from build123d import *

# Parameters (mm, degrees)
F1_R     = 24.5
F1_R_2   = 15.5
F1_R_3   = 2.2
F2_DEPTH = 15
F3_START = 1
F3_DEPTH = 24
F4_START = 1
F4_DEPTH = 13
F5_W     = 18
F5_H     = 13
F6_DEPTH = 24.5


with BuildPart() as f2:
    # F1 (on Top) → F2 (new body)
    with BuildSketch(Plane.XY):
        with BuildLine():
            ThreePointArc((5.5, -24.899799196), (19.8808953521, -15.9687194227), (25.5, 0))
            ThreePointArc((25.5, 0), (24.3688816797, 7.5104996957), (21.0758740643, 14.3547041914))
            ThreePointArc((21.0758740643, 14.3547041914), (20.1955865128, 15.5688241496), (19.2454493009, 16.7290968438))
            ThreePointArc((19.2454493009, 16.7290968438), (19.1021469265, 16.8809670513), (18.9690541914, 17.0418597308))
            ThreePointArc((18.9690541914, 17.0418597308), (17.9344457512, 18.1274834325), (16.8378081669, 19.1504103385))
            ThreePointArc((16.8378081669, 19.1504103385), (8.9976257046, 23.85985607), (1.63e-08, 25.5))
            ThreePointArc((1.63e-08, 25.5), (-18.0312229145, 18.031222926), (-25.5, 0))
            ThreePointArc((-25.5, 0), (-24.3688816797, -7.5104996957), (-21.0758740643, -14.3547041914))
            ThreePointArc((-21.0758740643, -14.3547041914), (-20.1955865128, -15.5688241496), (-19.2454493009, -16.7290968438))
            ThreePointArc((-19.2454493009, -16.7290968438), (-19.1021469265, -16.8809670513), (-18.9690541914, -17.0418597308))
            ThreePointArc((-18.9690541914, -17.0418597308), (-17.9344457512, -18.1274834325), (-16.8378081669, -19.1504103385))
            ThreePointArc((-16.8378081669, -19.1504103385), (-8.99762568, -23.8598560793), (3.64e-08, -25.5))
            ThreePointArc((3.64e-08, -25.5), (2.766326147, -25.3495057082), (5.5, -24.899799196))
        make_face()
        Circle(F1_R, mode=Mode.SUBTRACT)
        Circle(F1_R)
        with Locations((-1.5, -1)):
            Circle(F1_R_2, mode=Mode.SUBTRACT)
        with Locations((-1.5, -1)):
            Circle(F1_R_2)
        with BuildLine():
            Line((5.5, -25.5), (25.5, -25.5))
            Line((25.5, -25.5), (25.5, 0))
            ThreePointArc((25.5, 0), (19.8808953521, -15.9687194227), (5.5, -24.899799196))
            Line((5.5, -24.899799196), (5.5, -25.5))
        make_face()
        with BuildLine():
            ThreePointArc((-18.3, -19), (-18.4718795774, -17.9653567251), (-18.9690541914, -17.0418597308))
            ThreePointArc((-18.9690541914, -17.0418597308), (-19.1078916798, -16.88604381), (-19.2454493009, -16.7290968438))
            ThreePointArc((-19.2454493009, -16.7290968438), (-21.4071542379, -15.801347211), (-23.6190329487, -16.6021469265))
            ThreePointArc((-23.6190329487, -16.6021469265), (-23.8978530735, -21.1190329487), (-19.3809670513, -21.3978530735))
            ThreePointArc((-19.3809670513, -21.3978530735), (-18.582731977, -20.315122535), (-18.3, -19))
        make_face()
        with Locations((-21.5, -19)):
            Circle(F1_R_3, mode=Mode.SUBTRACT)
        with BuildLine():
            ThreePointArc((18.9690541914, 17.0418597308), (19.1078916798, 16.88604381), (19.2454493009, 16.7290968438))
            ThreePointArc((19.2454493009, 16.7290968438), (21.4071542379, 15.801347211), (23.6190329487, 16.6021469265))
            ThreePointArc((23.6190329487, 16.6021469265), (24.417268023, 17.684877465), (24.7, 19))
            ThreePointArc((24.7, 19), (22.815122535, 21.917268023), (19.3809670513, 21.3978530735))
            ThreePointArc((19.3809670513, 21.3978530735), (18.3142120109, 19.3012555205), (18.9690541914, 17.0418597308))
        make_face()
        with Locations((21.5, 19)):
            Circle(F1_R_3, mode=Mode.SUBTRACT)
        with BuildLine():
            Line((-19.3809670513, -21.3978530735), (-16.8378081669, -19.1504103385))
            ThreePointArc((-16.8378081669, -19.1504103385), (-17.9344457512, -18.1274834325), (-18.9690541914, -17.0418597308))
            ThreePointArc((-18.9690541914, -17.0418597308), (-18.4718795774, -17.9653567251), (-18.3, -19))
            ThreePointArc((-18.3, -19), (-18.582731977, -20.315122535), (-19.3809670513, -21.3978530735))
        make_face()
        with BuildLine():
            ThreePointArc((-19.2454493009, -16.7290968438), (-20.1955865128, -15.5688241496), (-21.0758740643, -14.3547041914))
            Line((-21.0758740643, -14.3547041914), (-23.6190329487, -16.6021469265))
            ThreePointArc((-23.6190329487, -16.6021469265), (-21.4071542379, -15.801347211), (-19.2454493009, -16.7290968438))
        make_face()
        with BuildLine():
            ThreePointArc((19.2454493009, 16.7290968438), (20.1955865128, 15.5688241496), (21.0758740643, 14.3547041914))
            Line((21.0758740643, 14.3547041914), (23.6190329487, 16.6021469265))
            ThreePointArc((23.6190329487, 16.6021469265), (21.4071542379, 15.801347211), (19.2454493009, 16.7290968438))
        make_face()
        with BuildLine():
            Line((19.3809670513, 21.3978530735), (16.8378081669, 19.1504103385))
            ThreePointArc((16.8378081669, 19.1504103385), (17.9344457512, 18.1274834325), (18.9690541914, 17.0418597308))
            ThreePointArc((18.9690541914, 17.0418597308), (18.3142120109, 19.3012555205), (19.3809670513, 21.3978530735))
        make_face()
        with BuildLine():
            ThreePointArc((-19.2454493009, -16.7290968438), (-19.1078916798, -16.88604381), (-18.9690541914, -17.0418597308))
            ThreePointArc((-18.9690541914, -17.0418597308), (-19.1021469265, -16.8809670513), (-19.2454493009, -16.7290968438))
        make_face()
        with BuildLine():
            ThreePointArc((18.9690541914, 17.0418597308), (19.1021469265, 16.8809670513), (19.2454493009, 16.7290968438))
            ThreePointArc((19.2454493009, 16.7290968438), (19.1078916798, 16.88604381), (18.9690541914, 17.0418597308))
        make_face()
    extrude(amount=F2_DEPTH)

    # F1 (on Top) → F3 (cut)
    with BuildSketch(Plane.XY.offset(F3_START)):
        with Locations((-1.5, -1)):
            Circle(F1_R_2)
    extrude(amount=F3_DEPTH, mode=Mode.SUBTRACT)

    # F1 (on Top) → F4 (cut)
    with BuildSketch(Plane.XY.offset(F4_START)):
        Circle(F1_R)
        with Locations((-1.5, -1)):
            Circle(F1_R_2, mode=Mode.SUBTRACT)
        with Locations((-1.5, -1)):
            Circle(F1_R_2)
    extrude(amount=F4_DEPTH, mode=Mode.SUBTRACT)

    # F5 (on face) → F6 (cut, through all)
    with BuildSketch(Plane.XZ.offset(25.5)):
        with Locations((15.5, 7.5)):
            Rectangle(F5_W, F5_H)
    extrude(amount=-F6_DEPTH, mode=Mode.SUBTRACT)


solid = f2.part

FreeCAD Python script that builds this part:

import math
import FreeCAD as App
import Part
import Sketcher
from FreeCAD import Vector

doc = App.newDocument("Part")
body = doc.addObject("PartDesign::Body", "Body")

sketch1 = doc.addObject("Sketcher::SketchObject", "Sketch")
body.addObject(sketch1)
sketch1.AttachmentSupport = (doc.XY_Plane, [""])
sketch1.MapMode = "FlatFace"
sketch1.addGeometry(Part.ArcOfCircle(Part.Circle(Vector(21.5, 19, 0), Vector(0, 0, 1), 3.2), math.radians(0), math.radians(131)), False)
sketch1.addGeometry(Part.LineSegment(Vector(19.4, 21.4, 0), Vector(16.8, 19.2, 0)), False)
sketch1.addGeometry(Part.ArcOfCircle(Part.Circle(Vector(0, 0, 0), Vector(0, 0, 1), 25.5), math.radians(49), math.radians(90)), False)
sketch1.addGeometry(Part.ArcOfCircle(Part.Circle(Vector(0, 0, 0), Vector(0, 0, 1), 25.5), math.radians(90), math.radians(180)), False)
sketch1.addGeometry(Part.ArcOfCircle(Part.Circle(Vector(0, 0, 0), Vector(0, 0, 1), 25.5), math.radians(180), math.radians(214)), False)
sketch1.addGeometry(Part.LineSegment(Vector(-21.1, -14.4, 0), Vector(-23.6, -16.6, 0)), False)
sketch1.addGeometry(Part.ArcOfCircle(Part.Circle(Vector(-21.5, -19, 0), Vector(0, 0, 1), 3.2), math.radians(131), math.radians(311)), False)
sketch1.addGeometry(Part.LineSegment(Vector(-19.4, -21.4, 0), Vector(-16.8, -19.2, 0)), False)
sketch1.addGeometry(Part.ArcOfCircle(Part.Circle(Vector(0, 0, 0), Vector(0, 0, 1), 25.5), math.radians(-131), math.radians(-90)), False)
sketch1.addGeometry(Part.ArcOfCircle(Part.Circle(Vector(0, 0, 0), Vector(0, 0, 1), 25.5), math.radians(-90), math.radians(-77.54)), False)
sketch1.addGeometry(Part.LineSegment(Vector(5.5, -24.9, 0), Vector(5.5, -25.5, 0)), False)
sketch1.addGeometry(Part.LineSegment(Vector(5.5, -25.5, 0), Vector(25.5, -25.5, 0)), False)
sketch1.addGeometry(Part.LineSegment(Vector(25.5, -25.5, 0), Vector(25.5, 0, 0)), False)
sketch1.addGeometry(Part.ArcOfCircle(Part.Circle(Vector(0, 0, 0), Vector(0, 0, 1), 25.5), math.radians(0), math.radians(34)), False)
sketch1.addGeometry(Part.LineSegment(Vector(21.1, 14.4, 0), Vector(23.6, 16.6, 0)), False)
sketch1.addGeometry(Part.ArcOfCircle(Part.Circle(Vector(21.5, 19, 0), Vector(0, 0, 1), 3.2), math.radians(-49), math.radians(0)), False)
sketch1.addGeometry(Part.Circle(Vector(-21.5, -19, 0), Vector(0, 0, 1), 2.2), False)
sketch1.addGeometry(Part.Circle(Vector(21.5, 19, 0), Vector(0, 0, 1), 2.2), False)
sketch1.addConstraint(Sketcher.Constraint("Tangent", 0, 2, 1, 1))
sketch1.addConstraint(Sketcher.Constraint("Coincident", 1, 2, 2, 1))
sketch1.addConstraint(Sketcher.Constraint("Tangent", 2, 2, 3, 1))
sketch1.addConstraint(Sketcher.Constraint("Tangent", 3, 2, 4, 1))
sketch1.addConstraint(Sketcher.Constraint("Coincident", 4, 2, 5, 1))
sketch1.addConstraint(Sketcher.Constraint("Tangent", 5, 2, 6, 1))
sketch1.addConstraint(Sketcher.Constraint("Tangent", 6, 2, 7, 1))
sketch1.addConstraint(Sketcher.Constraint("Coincident", 7, 2, 8, 1))
sketch1.addConstraint(Sketcher.Constraint("Tangent", 8, 2, 9, 1))
sketch1.addConstraint(Sketcher.Constraint("Coincident", 9, 2, 10, 1))
sketch1.addConstraint(Sketcher.Constraint("Coincident", 10, 2, 11, 1))
sketch1.addConstraint(Sketcher.Constraint("Coincident", 11, 2, 12, 1))
sketch1.addConstraint(Sketcher.Constraint("Tangent", 12, 2, 13, 1))
sketch1.addConstraint(Sketcher.Constraint("Coincident", 13, 2, 14, 1))
sketch1.addConstraint(Sketcher.Constraint("Tangent", 14, 2, 15, 1))
sketch1.addConstraint(Sketcher.Constraint("Tangent", 15, 2, 0, 1))
sketch1.addConstraint(Sketcher.Constraint("Vertical", 10))
sketch1.addConstraint(Sketcher.Constraint("Horizontal", 11))
sketch1.addConstraint(Sketcher.Constraint("Vertical", 12))
sketch1.addConstraint(Sketcher.Constraint("Coincident", 2, 3, -1, 1))
sketch1.addConstraint(Sketcher.Constraint("Coincident", 4, 3, -1, 1))
sketch1.addConstraint(Sketcher.Constraint("Coincident", 8, 3, -1, 1))
sketch1.addConstraint(Sketcher.Constraint("Coincident", 13, 3, -1, 1))
sketch1.addConstraint(Sketcher.Constraint("Coincident", 16, 3, 6, 3))
sketch1.addConstraint(Sketcher.Constraint("Coincident", 17, 3, 0, 3))
sketch1.addConstraint(Sketcher.Constraint("Equal", 0, 6))
sketch1.addConstraint(Sketcher.Constraint("Equal", 4, 8))
sketch1.addConstraint(Sketcher.Constraint("Equal", 8, 9))
sketch1.addConstraint(Sketcher.Constraint("Equal", 9, 13))
sketch1.addConstraint(Sketcher.Constraint("Equal", 6, 15))
sketch1.addConstraint(Sketcher.Constraint("Equal", 16, 17))
sketch1.addConstraint(Sketcher.Constraint("Symmetric", 0, 3, 6, 3, -1, 1))
sketch1.addConstraint(Sketcher.Constraint("PointOnObject", 2, 2, -2))
sketch1.addConstraint(Sketcher.Constraint("PointOnObject", 3, 2, -1))
sketch1.addConstraint(Sketcher.Constraint("PointOnObject", 8, 2, -2))
sketch1.addConstraint(Sketcher.Constraint("Parallel", 1, 5))
sketch1.addConstraint(Sketcher.Constraint("Parallel", 5, 7))
sketch1.addConstraint(Sketcher.Constraint("Parallel", 7, 14))
sketch1.addConstraint(Sketcher.Constraint("Horizontal", 8, 2, 10, 2))
sketch1.addConstraint(Sketcher.Constraint("Horizontal", 17, 3, 15, 2))
sketch1.addConstraint(Sketcher.Constraint("Equal", 1, 5))
sketch1.addConstraint(Sketcher.Constraint("Diameter", 16, 4.4))
sketch1.addConstraint(Sketcher.Constraint("Radius", 0, 3.2))
sketch1.addConstraint(Sketcher.Constraint("Radius", 2, 25.5))
sketch1.addConstraint(Sketcher.Constraint("DistanceX", 11, 1, 11, 2, 20.0))
sketch1.addConstraint(Sketcher.Constraint("DistanceY", -1, 1, 0, 3, 19.0))
sketch1.addConstraint(Sketcher.Constraint("DistanceX", 6, 3, 0, 3, 43.0))
pad1 = doc.addObject("PartDesign::Pad", "Pad")
body.addObject(pad1)
pad1.Profile = sketch1
pad1.Length = 15

sketch2 = doc.addObject("Sketcher::SketchObject", "Sketch001")
body.addObject(sketch2)
sketch2.AttachmentSupport = (doc.XY_Plane, [""])
sketch2.MapMode = "FlatFace"
sketch2.AttachmentOffset = App.Placement(Vector(0, 0, 1), App.Rotation())
sketch2.addGeometry(Part.Circle(Vector(-2, -1, 0), Vector(0, 0, 1), 16), False)
sketch2.addConstraint(Sketcher.Constraint("Diameter", 0, 31.0))
sketch2.addConstraint(Sketcher.Constraint("DistanceY", 0, 3, -1, 1, 1.0))
sketch2.addConstraint(Sketcher.Constraint("DistanceX", 0, 3, -1, 1, 1.5))
pocket1 = doc.addObject("PartDesign::Pocket", "Pocket")
body.addObject(pocket1)
pocket1.Profile = sketch2
pocket1.Length = 24
pocket1.Reversed = True

sketch3 = doc.addObject("Sketcher::SketchObject", "Sketch002")
body.addObject(sketch3)
sketch3.AttachmentSupport = (doc.XY_Plane, [""])
sketch3.MapMode = "FlatFace"
sketch3.AttachmentOffset = App.Placement(Vector(0, 0, 1), App.Rotation())
sketch3.addGeometry(Part.Circle(Vector(0, 0, 0), Vector(0, 0, 1), 24), False)
sketch3.addConstraint(Sketcher.Constraint("Coincident", 0, 3, -1, 1))
sketch3.addConstraint(Sketcher.Constraint("Diameter", 0, 49.0))
pocket2 = doc.addObject("PartDesign::Pocket", "Pocket001")
body.addObject(pocket2)
pocket2.Profile = sketch3
pocket2.Length = 13
pocket2.Reversed = True

sketch4 = doc.addObject("Sketcher::SketchObject", "Sketch003")
body.addObject(sketch4)
sketch4.AttachmentSupport = (doc.XZ_Plane, [""])
sketch4.MapMode = "FlatFace"
sketch4.AttachmentOffset = App.Placement(Vector(0, 0, 25.5), App.Rotation())
sketch4.addGeometry(Part.LineSegment(Vector(6, 14, 0), Vector(6, 1, 0)), False)
sketch4.addGeometry(Part.LineSegment(Vector(6, 1, 0), Vector(24, 1, 0)), False)
sketch4.addGeometry(Part.LineSegment(Vector(24, 1, 0), Vector(24, 14, 0)), False)
sketch4.addGeometry(Part.LineSegment(Vector(24, 14, 0), Vector(6, 14, 0)), False)
sketch4.addConstraint(Sketcher.Constraint("Coincident", 0, 2, 1, 1))
sketch4.addConstraint(Sketcher.Constraint("Coincident", 1, 2, 2, 1))
sketch4.addConstraint(Sketcher.Constraint("Coincident", 2, 2, 3, 1))
sketch4.addConstraint(Sketcher.Constraint("Coincident", 3, 2, 0, 1))
sketch4.addConstraint(Sketcher.Constraint("Vertical", 0))
sketch4.addConstraint(Sketcher.Constraint("Horizontal", 1))
sketch4.addConstraint(Sketcher.Constraint("Vertical", 2))
sketch4.addConstraint(Sketcher.Constraint("Horizontal", 3))
sketch4.addConstraint(Sketcher.Constraint("DistanceX", 1, 1, 1, 2, 18.0))
sketch4.addConstraint(Sketcher.Constraint("DistanceY", 0, 2, 0, 1, 13.0))
sketch4.addConstraint(Sketcher.Constraint("DistanceY", -1, 1, 0, 2, 1.0))
sketch4.addConstraint(Sketcher.Constraint("DistanceX", -1, 1, 0, 2, 6.5))
pocket3 = doc.addObject("PartDesign::Pocket", "Pocket002")
body.addObject(pocket3)
pocket3.Profile = sketch4
pocket3.Length = 24.5

doc.recompute()
